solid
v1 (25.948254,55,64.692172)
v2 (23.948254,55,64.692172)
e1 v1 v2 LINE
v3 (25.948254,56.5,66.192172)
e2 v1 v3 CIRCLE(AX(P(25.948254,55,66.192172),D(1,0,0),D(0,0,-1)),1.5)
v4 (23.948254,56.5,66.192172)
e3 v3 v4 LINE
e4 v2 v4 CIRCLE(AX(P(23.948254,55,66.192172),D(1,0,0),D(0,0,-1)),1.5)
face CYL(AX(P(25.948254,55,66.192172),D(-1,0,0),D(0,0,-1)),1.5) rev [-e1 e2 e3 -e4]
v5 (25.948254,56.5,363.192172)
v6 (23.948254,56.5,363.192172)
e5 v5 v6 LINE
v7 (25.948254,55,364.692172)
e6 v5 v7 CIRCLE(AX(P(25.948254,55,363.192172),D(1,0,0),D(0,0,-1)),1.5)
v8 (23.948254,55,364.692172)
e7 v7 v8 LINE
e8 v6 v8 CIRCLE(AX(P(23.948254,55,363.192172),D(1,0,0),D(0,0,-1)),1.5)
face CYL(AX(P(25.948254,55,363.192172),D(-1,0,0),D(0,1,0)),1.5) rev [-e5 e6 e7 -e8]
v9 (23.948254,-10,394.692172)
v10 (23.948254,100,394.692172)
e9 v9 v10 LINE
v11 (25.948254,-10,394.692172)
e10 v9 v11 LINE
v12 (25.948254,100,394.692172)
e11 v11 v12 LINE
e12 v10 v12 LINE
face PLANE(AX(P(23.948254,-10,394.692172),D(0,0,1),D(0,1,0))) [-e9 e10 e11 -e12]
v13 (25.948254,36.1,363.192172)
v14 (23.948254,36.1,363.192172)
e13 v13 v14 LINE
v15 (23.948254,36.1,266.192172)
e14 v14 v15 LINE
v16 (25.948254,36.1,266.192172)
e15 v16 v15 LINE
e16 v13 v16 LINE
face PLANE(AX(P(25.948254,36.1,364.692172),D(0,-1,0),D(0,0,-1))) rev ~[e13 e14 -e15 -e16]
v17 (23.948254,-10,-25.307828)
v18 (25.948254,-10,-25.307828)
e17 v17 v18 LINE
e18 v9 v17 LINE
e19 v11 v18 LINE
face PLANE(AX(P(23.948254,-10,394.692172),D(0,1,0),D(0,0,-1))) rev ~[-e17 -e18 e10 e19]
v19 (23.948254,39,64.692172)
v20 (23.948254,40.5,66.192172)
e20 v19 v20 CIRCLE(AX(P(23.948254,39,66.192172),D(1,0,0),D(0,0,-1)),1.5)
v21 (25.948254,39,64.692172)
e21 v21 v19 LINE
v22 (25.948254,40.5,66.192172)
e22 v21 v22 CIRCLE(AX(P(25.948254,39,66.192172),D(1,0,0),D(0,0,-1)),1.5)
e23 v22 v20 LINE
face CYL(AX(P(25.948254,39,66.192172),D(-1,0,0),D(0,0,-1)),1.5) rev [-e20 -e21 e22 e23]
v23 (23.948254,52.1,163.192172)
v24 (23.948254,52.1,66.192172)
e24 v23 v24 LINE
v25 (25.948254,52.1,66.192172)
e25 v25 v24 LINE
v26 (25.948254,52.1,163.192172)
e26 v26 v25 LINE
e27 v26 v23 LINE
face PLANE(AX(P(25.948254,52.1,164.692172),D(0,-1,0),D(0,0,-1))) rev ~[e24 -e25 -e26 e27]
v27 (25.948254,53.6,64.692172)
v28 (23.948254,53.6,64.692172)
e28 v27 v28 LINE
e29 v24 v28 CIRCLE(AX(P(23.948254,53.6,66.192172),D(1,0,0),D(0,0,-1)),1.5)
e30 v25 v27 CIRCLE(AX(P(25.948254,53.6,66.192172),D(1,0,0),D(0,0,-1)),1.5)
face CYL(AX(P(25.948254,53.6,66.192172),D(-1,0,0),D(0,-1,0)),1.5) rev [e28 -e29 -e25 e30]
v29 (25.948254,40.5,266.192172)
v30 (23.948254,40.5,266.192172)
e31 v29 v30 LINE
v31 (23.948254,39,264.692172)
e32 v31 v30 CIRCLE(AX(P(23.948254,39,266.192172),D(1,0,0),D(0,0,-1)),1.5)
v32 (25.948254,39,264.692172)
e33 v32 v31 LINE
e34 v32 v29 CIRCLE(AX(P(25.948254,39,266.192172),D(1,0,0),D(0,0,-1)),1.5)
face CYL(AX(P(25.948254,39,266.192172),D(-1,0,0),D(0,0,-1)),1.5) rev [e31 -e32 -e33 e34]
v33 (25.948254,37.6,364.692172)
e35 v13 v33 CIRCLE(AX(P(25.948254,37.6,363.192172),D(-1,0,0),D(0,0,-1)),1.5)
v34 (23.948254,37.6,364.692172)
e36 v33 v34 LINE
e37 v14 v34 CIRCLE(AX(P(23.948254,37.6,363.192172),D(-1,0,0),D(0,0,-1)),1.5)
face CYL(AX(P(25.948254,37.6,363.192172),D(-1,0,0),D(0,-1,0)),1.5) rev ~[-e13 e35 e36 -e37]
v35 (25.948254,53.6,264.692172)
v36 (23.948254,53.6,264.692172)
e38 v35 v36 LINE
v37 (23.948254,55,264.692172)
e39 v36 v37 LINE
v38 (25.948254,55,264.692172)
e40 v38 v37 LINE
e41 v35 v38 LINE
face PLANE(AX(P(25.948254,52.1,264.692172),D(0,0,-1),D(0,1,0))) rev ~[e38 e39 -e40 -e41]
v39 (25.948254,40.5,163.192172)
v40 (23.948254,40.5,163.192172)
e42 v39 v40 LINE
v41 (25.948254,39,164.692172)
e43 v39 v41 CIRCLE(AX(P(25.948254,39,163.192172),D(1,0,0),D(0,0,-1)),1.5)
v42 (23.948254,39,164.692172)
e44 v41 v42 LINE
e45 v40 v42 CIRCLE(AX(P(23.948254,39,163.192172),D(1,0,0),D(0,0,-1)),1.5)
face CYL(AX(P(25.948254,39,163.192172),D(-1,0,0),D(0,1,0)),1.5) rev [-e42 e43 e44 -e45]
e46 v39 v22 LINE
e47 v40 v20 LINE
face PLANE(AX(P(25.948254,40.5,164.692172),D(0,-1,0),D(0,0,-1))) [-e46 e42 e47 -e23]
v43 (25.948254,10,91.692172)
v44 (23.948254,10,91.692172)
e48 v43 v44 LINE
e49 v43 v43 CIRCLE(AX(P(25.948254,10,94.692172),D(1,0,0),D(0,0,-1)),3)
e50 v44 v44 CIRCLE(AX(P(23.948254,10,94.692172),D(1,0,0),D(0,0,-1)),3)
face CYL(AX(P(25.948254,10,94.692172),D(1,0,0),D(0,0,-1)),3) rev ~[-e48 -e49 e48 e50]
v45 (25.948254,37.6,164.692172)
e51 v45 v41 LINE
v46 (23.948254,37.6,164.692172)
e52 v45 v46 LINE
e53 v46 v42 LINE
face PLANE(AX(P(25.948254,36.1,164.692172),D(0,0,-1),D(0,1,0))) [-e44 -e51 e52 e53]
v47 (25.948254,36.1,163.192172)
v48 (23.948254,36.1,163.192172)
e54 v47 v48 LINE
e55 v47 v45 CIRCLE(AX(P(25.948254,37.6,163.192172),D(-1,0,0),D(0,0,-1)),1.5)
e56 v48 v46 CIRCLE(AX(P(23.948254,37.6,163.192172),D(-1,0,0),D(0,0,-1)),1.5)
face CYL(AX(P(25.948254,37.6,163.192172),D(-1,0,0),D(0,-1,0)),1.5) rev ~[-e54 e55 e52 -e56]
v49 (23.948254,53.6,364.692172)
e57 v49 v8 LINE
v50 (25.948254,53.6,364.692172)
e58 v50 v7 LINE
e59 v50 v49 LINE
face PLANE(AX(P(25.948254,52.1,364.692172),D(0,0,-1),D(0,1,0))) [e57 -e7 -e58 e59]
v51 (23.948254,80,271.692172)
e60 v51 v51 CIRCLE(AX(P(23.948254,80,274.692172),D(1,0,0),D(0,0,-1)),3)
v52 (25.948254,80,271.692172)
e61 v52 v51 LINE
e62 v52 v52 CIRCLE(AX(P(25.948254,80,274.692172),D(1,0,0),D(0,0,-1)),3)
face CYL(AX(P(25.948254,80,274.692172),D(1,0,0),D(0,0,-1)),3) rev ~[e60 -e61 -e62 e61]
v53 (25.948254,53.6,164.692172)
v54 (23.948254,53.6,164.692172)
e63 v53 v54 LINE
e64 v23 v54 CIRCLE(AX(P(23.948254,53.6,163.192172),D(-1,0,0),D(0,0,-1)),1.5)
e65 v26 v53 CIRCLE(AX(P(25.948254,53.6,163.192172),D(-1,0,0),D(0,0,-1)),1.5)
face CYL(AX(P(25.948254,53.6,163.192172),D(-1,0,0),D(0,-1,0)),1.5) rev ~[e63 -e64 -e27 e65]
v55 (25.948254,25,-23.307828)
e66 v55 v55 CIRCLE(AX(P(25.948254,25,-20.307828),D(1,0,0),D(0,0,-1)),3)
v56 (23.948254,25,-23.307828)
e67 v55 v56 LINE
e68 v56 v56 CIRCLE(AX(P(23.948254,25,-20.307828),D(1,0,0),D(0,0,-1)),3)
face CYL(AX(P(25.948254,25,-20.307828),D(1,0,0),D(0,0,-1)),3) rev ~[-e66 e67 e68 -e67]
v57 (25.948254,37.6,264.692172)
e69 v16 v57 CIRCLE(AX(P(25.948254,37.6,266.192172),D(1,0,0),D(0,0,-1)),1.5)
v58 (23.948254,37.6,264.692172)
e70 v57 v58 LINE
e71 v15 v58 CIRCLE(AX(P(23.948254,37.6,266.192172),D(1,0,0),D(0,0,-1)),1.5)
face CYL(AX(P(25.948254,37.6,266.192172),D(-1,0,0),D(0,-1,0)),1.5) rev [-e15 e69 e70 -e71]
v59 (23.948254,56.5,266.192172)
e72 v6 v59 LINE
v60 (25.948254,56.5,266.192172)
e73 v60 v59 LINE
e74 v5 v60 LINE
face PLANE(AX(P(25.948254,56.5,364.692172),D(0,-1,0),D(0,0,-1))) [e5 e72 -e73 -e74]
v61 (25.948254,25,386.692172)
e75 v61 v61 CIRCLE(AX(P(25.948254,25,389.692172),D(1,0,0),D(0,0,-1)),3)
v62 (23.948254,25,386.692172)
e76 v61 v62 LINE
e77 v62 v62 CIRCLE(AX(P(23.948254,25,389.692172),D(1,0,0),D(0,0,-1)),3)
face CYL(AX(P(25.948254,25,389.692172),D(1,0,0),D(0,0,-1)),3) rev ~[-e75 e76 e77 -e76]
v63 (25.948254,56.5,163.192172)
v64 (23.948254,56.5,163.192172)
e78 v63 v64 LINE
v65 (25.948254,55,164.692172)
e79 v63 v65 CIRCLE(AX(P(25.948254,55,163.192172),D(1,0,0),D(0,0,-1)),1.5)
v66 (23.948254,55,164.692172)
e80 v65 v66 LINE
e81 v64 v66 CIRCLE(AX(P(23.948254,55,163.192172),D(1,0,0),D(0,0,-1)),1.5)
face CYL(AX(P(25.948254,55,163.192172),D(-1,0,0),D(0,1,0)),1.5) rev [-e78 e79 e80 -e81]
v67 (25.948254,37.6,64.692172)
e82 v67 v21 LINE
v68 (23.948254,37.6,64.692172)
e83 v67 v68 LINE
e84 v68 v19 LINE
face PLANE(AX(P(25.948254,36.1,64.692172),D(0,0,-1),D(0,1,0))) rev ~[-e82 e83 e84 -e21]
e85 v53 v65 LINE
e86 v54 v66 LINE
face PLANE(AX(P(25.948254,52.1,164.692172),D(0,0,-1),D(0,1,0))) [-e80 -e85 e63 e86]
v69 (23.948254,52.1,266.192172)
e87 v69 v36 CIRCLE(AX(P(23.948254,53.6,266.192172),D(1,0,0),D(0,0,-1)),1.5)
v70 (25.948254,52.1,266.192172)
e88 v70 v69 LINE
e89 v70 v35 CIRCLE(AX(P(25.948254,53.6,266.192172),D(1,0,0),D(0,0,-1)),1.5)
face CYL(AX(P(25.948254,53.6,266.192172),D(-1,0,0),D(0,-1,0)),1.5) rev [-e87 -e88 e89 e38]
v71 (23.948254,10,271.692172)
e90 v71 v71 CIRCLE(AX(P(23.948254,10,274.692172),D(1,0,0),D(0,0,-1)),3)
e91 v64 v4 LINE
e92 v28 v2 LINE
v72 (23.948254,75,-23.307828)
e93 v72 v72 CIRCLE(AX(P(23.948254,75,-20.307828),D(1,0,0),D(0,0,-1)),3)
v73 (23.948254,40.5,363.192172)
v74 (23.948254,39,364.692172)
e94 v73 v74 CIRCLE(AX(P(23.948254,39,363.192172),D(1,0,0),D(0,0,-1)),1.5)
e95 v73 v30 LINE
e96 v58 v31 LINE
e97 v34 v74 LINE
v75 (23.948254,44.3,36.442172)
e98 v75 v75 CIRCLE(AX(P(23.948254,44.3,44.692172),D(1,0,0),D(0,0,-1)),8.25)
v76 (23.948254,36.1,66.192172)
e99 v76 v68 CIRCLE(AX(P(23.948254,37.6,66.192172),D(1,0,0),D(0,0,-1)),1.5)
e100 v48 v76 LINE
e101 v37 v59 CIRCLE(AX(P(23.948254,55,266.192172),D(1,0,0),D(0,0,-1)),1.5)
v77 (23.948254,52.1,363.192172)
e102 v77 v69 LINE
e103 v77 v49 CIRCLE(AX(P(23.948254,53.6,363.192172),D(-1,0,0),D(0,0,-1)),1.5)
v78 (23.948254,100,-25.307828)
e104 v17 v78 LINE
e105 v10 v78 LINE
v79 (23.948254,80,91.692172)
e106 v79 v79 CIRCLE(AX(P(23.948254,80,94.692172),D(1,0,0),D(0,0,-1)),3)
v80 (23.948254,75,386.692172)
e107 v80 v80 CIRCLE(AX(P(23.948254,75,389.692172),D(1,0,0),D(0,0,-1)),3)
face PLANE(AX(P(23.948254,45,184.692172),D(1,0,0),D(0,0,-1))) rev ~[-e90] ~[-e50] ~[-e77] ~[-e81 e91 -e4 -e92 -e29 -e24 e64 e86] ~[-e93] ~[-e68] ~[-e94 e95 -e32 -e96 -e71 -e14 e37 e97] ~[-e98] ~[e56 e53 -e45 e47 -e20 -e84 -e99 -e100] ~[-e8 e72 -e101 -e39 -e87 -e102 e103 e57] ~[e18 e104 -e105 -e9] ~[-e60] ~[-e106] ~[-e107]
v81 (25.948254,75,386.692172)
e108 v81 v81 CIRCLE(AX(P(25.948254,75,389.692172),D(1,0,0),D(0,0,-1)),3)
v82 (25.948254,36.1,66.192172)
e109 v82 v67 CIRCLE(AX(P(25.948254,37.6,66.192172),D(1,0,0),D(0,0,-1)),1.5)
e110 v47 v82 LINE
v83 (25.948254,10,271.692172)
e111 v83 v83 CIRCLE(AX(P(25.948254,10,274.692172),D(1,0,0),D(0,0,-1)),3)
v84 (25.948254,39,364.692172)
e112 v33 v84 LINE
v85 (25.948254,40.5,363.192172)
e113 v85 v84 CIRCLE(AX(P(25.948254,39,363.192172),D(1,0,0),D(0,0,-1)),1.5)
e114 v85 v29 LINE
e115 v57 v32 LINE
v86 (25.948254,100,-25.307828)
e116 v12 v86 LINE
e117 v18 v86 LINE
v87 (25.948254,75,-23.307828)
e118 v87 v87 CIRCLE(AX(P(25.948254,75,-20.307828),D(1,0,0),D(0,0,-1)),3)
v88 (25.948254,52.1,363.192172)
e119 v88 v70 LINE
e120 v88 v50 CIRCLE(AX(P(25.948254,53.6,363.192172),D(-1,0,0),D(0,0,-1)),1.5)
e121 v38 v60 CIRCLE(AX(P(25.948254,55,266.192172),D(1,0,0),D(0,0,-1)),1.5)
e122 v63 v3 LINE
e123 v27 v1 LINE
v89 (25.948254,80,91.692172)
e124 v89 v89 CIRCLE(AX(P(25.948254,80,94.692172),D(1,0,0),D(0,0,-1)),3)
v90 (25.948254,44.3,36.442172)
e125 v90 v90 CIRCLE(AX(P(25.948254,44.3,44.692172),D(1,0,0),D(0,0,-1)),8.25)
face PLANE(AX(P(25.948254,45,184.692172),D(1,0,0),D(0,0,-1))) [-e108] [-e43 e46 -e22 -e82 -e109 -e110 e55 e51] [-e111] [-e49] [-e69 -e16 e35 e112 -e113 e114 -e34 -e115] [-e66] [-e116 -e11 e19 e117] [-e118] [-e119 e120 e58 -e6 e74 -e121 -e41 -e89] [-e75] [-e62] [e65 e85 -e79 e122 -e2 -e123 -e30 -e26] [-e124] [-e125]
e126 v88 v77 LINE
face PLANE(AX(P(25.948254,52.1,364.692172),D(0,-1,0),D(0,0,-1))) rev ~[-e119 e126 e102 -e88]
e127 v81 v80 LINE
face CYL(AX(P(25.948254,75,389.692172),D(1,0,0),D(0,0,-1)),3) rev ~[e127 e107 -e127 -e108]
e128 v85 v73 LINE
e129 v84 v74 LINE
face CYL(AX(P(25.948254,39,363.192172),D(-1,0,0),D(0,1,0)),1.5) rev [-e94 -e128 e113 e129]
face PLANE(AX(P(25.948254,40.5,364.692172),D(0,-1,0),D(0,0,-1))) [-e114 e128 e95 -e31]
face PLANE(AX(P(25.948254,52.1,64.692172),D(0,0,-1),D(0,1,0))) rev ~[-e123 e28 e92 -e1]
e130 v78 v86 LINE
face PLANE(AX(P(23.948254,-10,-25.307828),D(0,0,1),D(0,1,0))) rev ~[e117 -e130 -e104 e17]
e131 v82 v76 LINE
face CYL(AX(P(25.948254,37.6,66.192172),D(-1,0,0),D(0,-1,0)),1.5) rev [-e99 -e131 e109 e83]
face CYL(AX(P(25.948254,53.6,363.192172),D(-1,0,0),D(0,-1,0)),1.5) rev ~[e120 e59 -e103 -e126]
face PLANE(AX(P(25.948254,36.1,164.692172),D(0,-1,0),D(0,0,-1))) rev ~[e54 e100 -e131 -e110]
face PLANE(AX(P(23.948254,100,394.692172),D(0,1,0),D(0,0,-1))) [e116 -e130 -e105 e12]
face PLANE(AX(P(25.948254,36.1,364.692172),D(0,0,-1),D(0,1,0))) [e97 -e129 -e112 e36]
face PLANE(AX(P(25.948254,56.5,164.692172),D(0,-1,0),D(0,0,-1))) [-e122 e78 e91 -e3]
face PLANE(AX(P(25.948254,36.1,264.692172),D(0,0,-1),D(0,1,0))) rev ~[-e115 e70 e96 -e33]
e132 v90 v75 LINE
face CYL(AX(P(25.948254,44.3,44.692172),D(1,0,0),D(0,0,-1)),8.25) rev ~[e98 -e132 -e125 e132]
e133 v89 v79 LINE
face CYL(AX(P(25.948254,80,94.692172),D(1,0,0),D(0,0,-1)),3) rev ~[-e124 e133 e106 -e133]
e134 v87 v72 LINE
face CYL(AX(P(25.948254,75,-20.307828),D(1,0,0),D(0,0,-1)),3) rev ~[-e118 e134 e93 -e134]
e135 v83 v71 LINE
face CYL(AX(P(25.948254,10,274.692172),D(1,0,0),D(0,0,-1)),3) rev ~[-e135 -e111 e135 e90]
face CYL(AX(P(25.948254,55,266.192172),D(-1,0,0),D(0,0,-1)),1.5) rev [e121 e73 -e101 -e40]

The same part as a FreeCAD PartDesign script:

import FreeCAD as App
import Part
import Sketcher
from FreeCAD import Vector


def edges_at(feature, points):
    """Names of the edges that pass closest to the given points."""
    edges = feature.Shape.Edges
    near = lambda p: min(range(len(edges)), key=lambda i: edges[i].distToShape(Part.Vertex(*p))[0])
    return sorted({f"Edge{near(p) + 1}" for p in points})


def add_polygon(sketch, points):
    """Adds a closed chain of lines whose ends are joined by coincident constraints."""
    first, n = sketch.GeometryCount, len(points)
    for a, b in zip(points, points[1:] + points[:1]):
        sketch.addGeometry(Part.LineSegment(App.Vector(*a, 0), App.Vector(*b, 0)), False)
    for i in range(n):
        sketch.addConstraint(Sketcher.Constraint("Coincident", first + i, 2, first + (i + 1) % n, 1))

doc = App.newDocument("Part")
body = doc.addObject("PartDesign::Body", "Body")

# Sketch on YZ plane
sketch1 = doc.addObject("Sketcher::SketchObject", "Sketch")
body.addObject(sketch1)
sketch1.AttachmentSupport = (doc.YZ_Plane, [""])
sketch1.MapMode = "FlatFace"
sketch1.AttachmentOffset = App.Placement(Vector(0, 0, 23.948254), App.Rotation())
add_polygon(sketch1, [(100, 395), (-10, 395), (-10, -25), (100, -25)])  # lines 0-3
sketch1.addConstraint([
    Sketcher.Constraint("Horizontal", 0),
    Sketcher.Constraint("Vertical", 1),
    Sketcher.Constraint("Horizontal", 2),
    Sketcher.Constraint("Vertical", 3),
    Sketcher.Constraint("DistanceX", 0, 2, 0, 1, 110.0),
    Sketcher.Constraint("DistanceY", 1, 2, 1, 1, 420.0),
    Sketcher.Constraint("DistanceX", 0, 2, -1, 1, 10.0),
    Sketcher.Constraint("DistanceY", -1, 1, 0, 2, 394.692172),
])
pad1 = doc.addObject("PartDesign::Pad", "Pad")
body.addObject(pad1)
pad1.Profile = sketch1
pad1.Length = 2

# Sketch on YZ plane
sketch2 = doc.addObject("Sketcher::SketchObject", "Sketch001")
body.addObject(sketch2)
sketch2.AttachmentSupport = (doc.YZ_Plane, [""])
sketch2.MapMode = "FlatFace"
sketch2.AttachmentOffset = App.Placement(Vector(0, 0, 25.948254), App.Rotation())
add_polygon(sketch2, [(56.5, 364.7), (52.1, 364.7), (52.1, 264.7), (56.5, 264.7)])  # lines 0-3
add_polygon(sketch2, [(40.5, 364.7), (36.1, 364.7), (36.1, 264.7), (40.5, 264.7)])  # lines 4-7
add_polygon(sketch2, [(56.5, 164.7), (52.1, 164.7), (52.1, 64.7), (56.5, 64.7)])  # lines 8-11
add_polygon(sketch2, [(40.5, 164.7), (36.1, 164.7), (36.1, 64.7), (40.5, 64.7)])  # lines 12-15
sketch2.addConstraint([
    Sketcher.Constraint("Horizontal", 0),
    Sketcher.Constraint("Vertical", 1),
    Sketcher.Constraint("Horizontal", 2),
    Sketcher.Constraint("Vertical", 3),
    Sketcher.Constraint("Horizontal", 4),
    Sketcher.Constraint("Vertical", 5),
    Sketcher.Constraint("Horizontal", 6),
    Sketcher.Constraint("Vertical", 7),
    Sketcher.Constraint("Horizontal", 8),
    Sketcher.Constraint("Vertical", 9),
    Sketcher.Constraint("Horizontal", 10),
    Sketcher.Constraint("Vertical", 11),
    Sketcher.Constraint("Horizontal", 12),
    Sketcher.Constraint("Vertical", 13),
    Sketcher.Constraint("Horizontal", 14),
    Sketcher.Constraint("Vertical", 15),
    Sketcher.Constraint("Horizontal", 3, 2, 4, 2),
    Sketcher.Constraint("Horizontal", 2, 2, 5, 2),
    Sketcher.Constraint("Horizontal", 11, 2, 12, 2),
    Sketcher.Constraint("Horizontal", 10, 2, 13, 2),
    Sketcher.Constraint("Vertical", 1, 2, 8, 2),
    Sketcher.Constraint("Vertical", 3, 2, 10, 2),
    Sketcher.Constraint("Vertical", 5, 2, 12, 2),
    Sketcher.Constraint("Vertical", 7, 2, 14, 2),
    Sketcher.Constraint("Equal", 2, 4),
    Sketcher.Constraint("Equal", 7, 9),
    Sketcher.Constraint("DistanceY", 1, 2, 1, 1, 100.0),
    Sketcher.Constraint("DistanceX", 0, 2, 0, 1, 4.4),
    Sketcher.Constraint("DistanceX", 4, 2, 0, 2, 16.0),
    Sketcher.Constraint("DistanceY", 8, 2, 1, 2, 100.0),
    Sketcher.Constraint("DistanceX", -1, 1, 0, 2, 52.1),
    Sketcher.Constraint("DistanceY", -1, 1, 0, 2, 364.692172),
])
pocket1 = doc.addObject("PartDesign::Pocket", "Pocket")
body.addObject(pocket1)
pocket1.Profile = sketch2
pocket1.Length = 2
doc.recompute()

fillet = doc.addObject("PartDesign::Fillet", "Fillet")
body.addObject(fillet)
fillet.Base = (pocket1, edges_at(pocket1, [
    (24.948, 52.1, 364.692),
    (24.948, 56.5, 364.692),
    (24.948, 56.5, 264.692),
    (24.948, 52.1, 264.692),
    (24.948, 36.1, 364.692),
    (24.948, 40.5, 364.692),
    (24.948, 40.5, 264.692),
    (24.948, 36.1, 264.692),
    (24.948, 56.5, 64.692),
    (24.948, 52.1, 64.692),
    (24.948, 52.1, 164.692),
    (24.948, 56.5, 164.692),
    (24.948, 36.1, 164.692),
    (24.948, 40.5, 164.692),
    (24.948, 40.5, 64.692),
    (24.948, 36.1, 64.692),
]))
fillet.Radius = 1.5

# Sketch on YZ plane
sketch3 = doc.addObject("Sketcher::SketchObject", "Sketch002")
body.addObject(sketch3)
sketch3.AttachmentSupport = (doc.YZ_Plane, [""])
sketch3.MapMode = "FlatFace"
sketch3.AttachmentOffset = App.Placement(Vector(0, 0, 25.948254), App.Rotation())
sketch3.addGeometry(Part.Circle(Vector(75, 389.7, 0), Vector(0, 0, 1), 3), False)
sketch3.addConstraint([
    Sketcher.Constraint("Diameter", 0, 6.0),
    Sketcher.Constraint("DistanceX", -1, 1, 0, 3, 75.0),
    Sketcher.Constraint("DistanceY", -1, 1, 0, 3, 389.692172),
])
pocket2 = doc.addObject("PartDesign::Pocket", "Pocket001")
body.addObject(pocket2)
pocket2.Profile = sketch3
pocket2.Type = "UpToFirst"

# Sketch on YZ plane
sketch4 = doc.addObject("Sketcher::SketchObject", "Sketch003")
body.addObject(sketch4)
sketch4.AttachmentSupport = (doc.YZ_Plane, [""])
sketch4.MapMode = "FlatFace"
sketch4.AttachmentOffset = App.Placement(Vector(0, 0, 25.948254), App.Rotation())
sketch4.addGeometry(Part.Circle(Vector(25, 389.7, 0), Vector(0, 0, 1), 3), False)
sketch4.addConstraint([
    Sketcher.Constraint("Diameter", 0, 6.0),
    Sketcher.Constraint("DistanceX", -1, 1, 0, 3, 25.0),
    Sketcher.Constraint("DistanceY", -1, 1, 0, 3, 389.692172),
])
pocket3 = doc.addObject("PartDesign::Pocket", "Pocket002")
body.addObject(pocket3)
pocket3.Profile = sketch4
pocket3.Type = "UpToFirst"

# Sketch on YZ plane
sketch5 = doc.addObject("Sketcher::SketchObject", "Sketch004")
body.addObject(sketch5)
sketch5.AttachmentSupport = (doc.YZ_Plane, [""])
sketch5.MapMode = "FlatFace"
sketch5.AttachmentOffset = App.Placement(Vector(0, 0, 25.948254), App.Rotation())
sketch5.addGeometry(Part.Circle(Vector(75, -20.3, 0), Vector(0, 0, 1), 3), False)
sketch5.addConstraint([
    Sketcher.Constraint("Diameter", 0, 6.0),
    Sketcher.Constraint("DistanceX", -1, 1, 0, 3, 75.0),
    Sketcher.Constraint("DistanceY", 0, 3, -1, 1, 20.307828),
])
pocket4 = doc.addObject("PartDesign::Pocket", "Pocket003")
body.addObject(pocket4)
pocket4.Profile = sketch5
pocket4.Type = "UpToFirst"

# Sketch on YZ plane
sketch6 = doc.addObject("Sketcher::SketchObject", "Sketch005")
body.addObject(sketch6)
sketch6.AttachmentSupport = (doc.YZ_Plane, [""])
sketch6.MapMode = "FlatFace"
sketch6.AttachmentOffset = App.Placement(Vector(0, 0, 25.948254), App.Rotation())
sketch6.addGeometry(Part.Circle(Vector(25, -20.3, 0), Vector(0, 0, 1), 3), False)
sketch6.addConstraint([
    Sketcher.Constraint("Diameter", 0, 6.0),
    Sketcher.Constraint("DistanceX", -1, 1, 0, 3, 25.0),
    Sketcher.Constraint("DistanceY", 0, 3, -1, 1, 20.307828),
])
pocket5 = doc.addObject("PartDesign::Pocket", "Pocket004")
body.addObject(pocket5)
pocket5.Profile = sketch6
pocket5.Type = "UpToFirst"

# Sketch on YZ plane
sketch7 = doc.addObject("Sketcher::SketchObject", "Sketch006")
body.addObject(sketch7)
sketch7.AttachmentSupport = (doc.YZ_Plane, [""])
sketch7.MapMode = "FlatFace"
sketch7.AttachmentOffset = App.Placement(Vector(0, 0, 25.948254), App.Rotation())
sketch7.addGeometry(Part.Circle(Vector(10, 274.7, 0), Vector(0, 0, 1), 3), False)
sketch7.addConstraint([
    Sketcher.Constraint("Diameter", 0, 6.0),
    Sketcher.Constraint("DistanceX", -1, 1, 0, 3, 10.0),
    Sketcher.Constraint("DistanceY", -1, 1, 0, 3, 274.692172),
])
pocket6 = doc.addObject("PartDesign::Pocket", "Pocket005")
body.addObject(pocket6)
pocket6.Profile = sketch7
pocket6.Type = "UpToFirst"

# Sketch on YZ plane
sketch8 = doc.addObject("Sketcher::SketchObject", "Sketch007")
body.addObject(sketch8)
sketch8.AttachmentSupport = (doc.YZ_Plane, [""])
sketch8.MapMode = "FlatFace"
sketch8.AttachmentOffset = App.Placement(Vector(0, 0, 25.948254), App.Rotation())
sketch8.addGeometry(Part.Circle(Vector(10, 94.7, 0), Vector(0, 0, 1), 3), False)
sketch8.addConstraint([
    Sketcher.Constraint("Diameter", 0, 6.0),
    Sketcher.Constraint("DistanceX", -1, 1, 0, 3, 10.0),
    Sketcher.Constraint("DistanceY", -1, 1, 0, 3, 94.692172),
])
pocket7 = doc.addObject("PartDesign::Pocket", "Pocket006")
body.addObject(pocket7)
pocket7.Profile = sketch8
pocket7.Type = "UpToFirst"

# Sketch on YZ plane
sketch9 = doc.addObject("Sketcher::SketchObject", "Sketch008")
body.addObject(sketch9)
sketch9.AttachmentSupport = (doc.YZ_Plane, [""])
sketch9.MapMode = "FlatFace"
sketch9.AttachmentOffset = App.Placement(Vector(0, 0, 25.948254), App.Rotation())
sketch9.addGeometry(Part.Circle(Vector(44, 45, 0), Vector(0, 0, 1), 8), False)
sketch9.addConstraint([
    Sketcher.Constraint("Diameter", 0, 16.5),
    Sketcher.Constraint("DistanceX", -1, 1, 0, 3, 44.3),
    Sketcher.Constraint("DistanceY", -1, 1, 0, 3, 44.692172),
])
pocket8 = doc.addObject("PartDesign::Pocket", "Pocket007")
body.addObject(pocket8)
pocket8.Profile = sketch9
pocket8.Type = "UpToFirst"

# Sketch on YZ plane
sketch10 = doc.addObject("Sketcher::SketchObject", "Sketch009")
body.addObject(sketch10)
sketch10.AttachmentSupport = (doc.YZ_Plane, [""])
sketch10.MapMode = "FlatFace"
sketch10.AttachmentOffset = App.Placement(Vector(0, 0, 25.948254), App.Rotation())
sketch10.addGeometry(Part.Circle(Vector(80, 274.7, 0), Vector(0, 0, 1), 3), False)
sketch10.addConstraint([
    Sketcher.Constraint("Diameter", 0, 6.0),
    Sketcher.Constraint("DistanceX", -1, 1, 0, 3, 80.0),
    Sketcher.Constraint("DistanceY", -1, 1, 0, 3, 274.692172),
])
pocket9 = doc.addObject("PartDesign::Pocket", "Pocket008")
body.addObject(pocket9)
pocket9.Profile = sketch10
pocket9.Type = "UpToFirst"

# Sketch on YZ plane
sketch11 = doc.addObject("Sketcher::SketchObject", "Sketch010")
body.addObject(sketch11)
sketch11.AttachmentSupport = (doc.YZ_Plane, [""])
sketch11.MapMode = "FlatFace"
sketch11.AttachmentOffset = App.Placement(Vector(0, 0, 25.948254), App.Rotation())
sketch11.addGeometry(Part.Circle(Vector(80, 94.7, 0), Vector(0, 0, 1), 3), False)
sketch11.addConstraint([
    Sketcher.Constraint("Diameter", 0, 6.0),
    Sketcher.Constraint("DistanceX", -1, 1, 0, 3, 80.0),
    Sketcher.Constraint("DistanceY", -1, 1, 0, 3, 94.692172),
])
pocket10 = doc.addObject("PartDesign::Pocket", "Pocket009")
body.addObject(pocket10)
pocket10.Profile = sketch11
pocket10.Type = "UpToFirst"

doc.recompute()
